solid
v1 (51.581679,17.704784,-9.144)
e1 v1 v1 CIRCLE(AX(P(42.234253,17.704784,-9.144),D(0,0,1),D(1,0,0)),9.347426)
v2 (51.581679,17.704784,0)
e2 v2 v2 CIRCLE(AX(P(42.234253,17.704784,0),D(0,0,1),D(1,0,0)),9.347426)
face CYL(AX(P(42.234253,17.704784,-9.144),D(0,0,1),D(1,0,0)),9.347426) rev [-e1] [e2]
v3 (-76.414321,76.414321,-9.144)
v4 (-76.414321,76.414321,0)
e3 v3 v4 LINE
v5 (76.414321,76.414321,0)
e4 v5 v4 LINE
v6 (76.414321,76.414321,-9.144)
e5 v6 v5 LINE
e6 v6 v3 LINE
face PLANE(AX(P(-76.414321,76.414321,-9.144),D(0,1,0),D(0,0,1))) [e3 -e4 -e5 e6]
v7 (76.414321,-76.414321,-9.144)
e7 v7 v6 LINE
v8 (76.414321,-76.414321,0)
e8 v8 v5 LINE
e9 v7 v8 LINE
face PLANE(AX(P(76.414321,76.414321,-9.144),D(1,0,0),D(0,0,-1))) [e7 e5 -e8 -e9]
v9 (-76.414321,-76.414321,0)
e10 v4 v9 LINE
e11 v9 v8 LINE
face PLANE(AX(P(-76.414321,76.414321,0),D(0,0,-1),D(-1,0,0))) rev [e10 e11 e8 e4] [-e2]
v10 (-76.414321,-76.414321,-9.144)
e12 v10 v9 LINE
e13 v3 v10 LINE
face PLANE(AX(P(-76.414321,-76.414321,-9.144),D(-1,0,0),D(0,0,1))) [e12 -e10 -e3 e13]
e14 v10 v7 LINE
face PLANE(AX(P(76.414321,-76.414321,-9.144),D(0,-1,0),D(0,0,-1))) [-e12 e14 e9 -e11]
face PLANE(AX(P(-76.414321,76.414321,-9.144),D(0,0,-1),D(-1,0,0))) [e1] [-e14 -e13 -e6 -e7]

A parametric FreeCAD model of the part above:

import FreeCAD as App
import Part
import Sketcher

V = App.Vector
Q = App.Units.Quantity

doc = App.newDocument("Part")
body = doc.addObject("PartDesign::Body", "Body")

# Sketch on XY plane
sketch1 = doc.addObject("Sketcher::SketchObject", "Sketch")
body.addObject(sketch1)
sketch1.AttachmentSupport = (doc.XY_Plane, [""])
sketch1.MapMode = "FlatFace"
sketch1.addGeometry(Part.LineSegment(V(-76, 76, 0), V(-76, -76, 0)), False)
sketch1.addGeometry(Part.LineSegment(V(-76, -76, 0), V(76, -76, 0)), False)
sketch1.addGeometry(Part.LineSegment(V(76, -76, 0), V(76, 76, 0)), False)
sketch1.addGeometry(Part.LineSegment(V(76, 76, 0), V(-76, 76, 0)), False)
sketch1.addGeometry(Part.Circle(V(42, 18, 0), V(0, 0, 1), 9), False)
sketch1.addConstraint(Sketcher.Constraint("Coincident", 0, 2, 1, 1))
sketch1.addConstraint(Sketcher.Constraint("Coincident", 1, 2, 2, 1))
sketch1.addConstraint(Sketcher.Constraint("Coincident", 2, 2, 3, 1))
sketch1.addConstraint(Sketcher.Constraint("Coincident", 3, 2, 0, 1))
sketch1.addConstraint(Sketcher.Constraint("Vertical", 0))
sketch1.addConstraint(Sketcher.Constraint("Horizontal", 1))
sketch1.addConstraint(Sketcher.Constraint("Vertical", 2))
sketch1.addConstraint(Sketcher.Constraint("Horizontal", 3))
sketch1.addConstraint(Sketcher.Constraint("Symmetric", 0, 2, 2, 2, -1, 1))
sketch1.addConstraint(Sketcher.Constraint("Equal", 3, 0))
sketch1.addConstraint(Sketcher.Constraint("Diameter", 4, Q("18.694853 mm")))
sketch1.addConstraint(Sketcher.Constraint("DistanceX", 1, 1, 1, 2, Q("152.828642 mm")))
sketch1.addConstraint(Sketcher.Constraint("DistanceX", 4, 3, 1, 2, Q("34.180068 mm")))
sketch1.addConstraint(Sketcher.Constraint("DistanceY", -1, 1, 4, 3, Q("17.704784 mm")))
pad1 = doc.addObject("PartDesign::Pad", "Pad")
body.addObject(pad1)
pad1.Profile = sketch1
pad1.Length = Q("0.36 in")
pad1.Reversed = True

doc.recompute()
